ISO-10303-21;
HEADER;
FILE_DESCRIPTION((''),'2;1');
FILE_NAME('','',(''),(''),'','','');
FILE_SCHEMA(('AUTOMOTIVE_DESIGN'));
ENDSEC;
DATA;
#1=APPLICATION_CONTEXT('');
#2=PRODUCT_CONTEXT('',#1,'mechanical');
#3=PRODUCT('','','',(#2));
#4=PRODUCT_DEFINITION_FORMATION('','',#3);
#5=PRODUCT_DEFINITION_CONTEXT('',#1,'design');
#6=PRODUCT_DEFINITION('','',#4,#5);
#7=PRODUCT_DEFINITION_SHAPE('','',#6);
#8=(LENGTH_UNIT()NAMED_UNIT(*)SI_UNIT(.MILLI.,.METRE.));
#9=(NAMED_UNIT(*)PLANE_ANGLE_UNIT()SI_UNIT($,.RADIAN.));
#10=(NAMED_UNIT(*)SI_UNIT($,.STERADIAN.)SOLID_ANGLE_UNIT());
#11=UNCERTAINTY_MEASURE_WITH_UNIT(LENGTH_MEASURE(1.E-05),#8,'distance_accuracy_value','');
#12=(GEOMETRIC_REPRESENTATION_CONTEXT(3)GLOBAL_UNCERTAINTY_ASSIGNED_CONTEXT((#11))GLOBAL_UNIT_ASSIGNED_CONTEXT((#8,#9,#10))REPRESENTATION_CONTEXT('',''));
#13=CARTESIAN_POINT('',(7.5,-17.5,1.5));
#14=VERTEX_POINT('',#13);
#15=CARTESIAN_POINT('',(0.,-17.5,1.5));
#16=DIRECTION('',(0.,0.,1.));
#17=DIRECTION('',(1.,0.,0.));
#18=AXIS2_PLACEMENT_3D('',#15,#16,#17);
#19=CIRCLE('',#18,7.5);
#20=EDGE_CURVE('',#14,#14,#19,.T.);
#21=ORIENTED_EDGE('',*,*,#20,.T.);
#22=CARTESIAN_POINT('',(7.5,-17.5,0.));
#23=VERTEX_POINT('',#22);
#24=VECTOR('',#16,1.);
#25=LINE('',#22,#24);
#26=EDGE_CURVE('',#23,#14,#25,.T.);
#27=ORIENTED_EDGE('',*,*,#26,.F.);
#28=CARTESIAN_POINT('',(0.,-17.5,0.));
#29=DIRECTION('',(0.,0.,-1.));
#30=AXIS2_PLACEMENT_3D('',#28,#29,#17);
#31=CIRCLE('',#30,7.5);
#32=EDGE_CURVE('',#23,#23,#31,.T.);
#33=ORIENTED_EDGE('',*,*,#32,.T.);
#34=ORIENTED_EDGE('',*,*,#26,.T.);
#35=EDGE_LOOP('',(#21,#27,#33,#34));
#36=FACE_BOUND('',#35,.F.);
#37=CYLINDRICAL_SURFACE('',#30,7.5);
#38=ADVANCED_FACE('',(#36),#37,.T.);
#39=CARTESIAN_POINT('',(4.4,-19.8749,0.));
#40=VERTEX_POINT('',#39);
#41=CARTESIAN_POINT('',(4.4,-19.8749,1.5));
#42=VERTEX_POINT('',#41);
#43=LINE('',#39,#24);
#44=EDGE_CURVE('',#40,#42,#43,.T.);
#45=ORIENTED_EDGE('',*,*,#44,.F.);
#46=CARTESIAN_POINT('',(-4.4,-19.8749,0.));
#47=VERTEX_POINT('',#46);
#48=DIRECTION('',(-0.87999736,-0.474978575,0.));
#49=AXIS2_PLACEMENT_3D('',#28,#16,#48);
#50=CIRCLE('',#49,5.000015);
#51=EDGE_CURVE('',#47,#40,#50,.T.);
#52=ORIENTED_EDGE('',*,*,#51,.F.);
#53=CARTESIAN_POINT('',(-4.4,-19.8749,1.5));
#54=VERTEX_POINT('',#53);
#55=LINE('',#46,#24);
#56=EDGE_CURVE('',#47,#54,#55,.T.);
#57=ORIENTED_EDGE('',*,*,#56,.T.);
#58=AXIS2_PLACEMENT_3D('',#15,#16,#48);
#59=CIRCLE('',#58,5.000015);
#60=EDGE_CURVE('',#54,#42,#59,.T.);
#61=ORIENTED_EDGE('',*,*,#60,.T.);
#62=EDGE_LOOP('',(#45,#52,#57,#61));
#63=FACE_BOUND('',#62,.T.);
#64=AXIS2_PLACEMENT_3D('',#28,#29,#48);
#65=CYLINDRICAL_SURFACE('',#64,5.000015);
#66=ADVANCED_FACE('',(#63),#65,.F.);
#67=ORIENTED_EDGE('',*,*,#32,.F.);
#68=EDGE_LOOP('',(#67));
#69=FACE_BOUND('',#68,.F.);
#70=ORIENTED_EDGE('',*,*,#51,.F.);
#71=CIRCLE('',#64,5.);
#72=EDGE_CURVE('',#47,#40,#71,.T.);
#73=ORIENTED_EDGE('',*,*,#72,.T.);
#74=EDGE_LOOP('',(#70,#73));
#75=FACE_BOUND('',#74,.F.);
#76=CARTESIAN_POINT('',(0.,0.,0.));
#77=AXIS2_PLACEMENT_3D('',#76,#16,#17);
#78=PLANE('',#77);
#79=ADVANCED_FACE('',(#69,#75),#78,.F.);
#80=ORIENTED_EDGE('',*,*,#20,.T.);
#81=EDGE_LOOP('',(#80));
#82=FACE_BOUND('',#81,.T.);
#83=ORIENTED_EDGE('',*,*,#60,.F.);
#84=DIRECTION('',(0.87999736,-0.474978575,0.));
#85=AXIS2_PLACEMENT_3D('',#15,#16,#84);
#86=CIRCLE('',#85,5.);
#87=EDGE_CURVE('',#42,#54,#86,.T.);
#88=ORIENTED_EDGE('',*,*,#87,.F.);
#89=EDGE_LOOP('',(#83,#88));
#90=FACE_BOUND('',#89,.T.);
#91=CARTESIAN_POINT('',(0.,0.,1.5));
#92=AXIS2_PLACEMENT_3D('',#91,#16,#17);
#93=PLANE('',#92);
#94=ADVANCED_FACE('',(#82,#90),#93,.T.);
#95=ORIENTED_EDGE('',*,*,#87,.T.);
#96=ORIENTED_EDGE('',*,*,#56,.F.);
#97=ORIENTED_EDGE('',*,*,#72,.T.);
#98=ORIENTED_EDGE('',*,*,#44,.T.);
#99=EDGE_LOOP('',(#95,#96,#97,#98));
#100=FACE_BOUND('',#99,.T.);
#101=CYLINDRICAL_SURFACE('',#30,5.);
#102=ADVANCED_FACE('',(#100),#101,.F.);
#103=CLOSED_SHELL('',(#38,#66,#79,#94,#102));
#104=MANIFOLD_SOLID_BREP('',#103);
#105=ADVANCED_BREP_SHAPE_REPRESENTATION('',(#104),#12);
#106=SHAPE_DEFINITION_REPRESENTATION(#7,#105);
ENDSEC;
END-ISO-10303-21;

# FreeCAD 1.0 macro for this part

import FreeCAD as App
import Part
import Sketcher
Q = App.Units.Quantity

doc = App.newDocument("Part")
params = doc.addObject("Spreadsheet::Sheet", "Params")
for row, (alias, value) in enumerate([
    ("sketch1_diameter", "15 mm"),
    ("sketch1_diameter2", "10 mm"),
    ("pad1_length", "1.5 mm"),
], start=1):
    params.set(f"A{row}", alias)
    params.set(f"B{row}", "=" + value)
    params.setAlias(f"B{row}", alias)

body = doc.addObject("PartDesign::Body", "Body")

# Sketch on XY plane
sketch1 = body.newObject("Sketcher::SketchObject", "Sketch")
sketch1.AttachmentSupport = (doc.getObject("XY_Plane"), [""])
sketch1.MapMode = "FlatFace"
sketch1.addGeometry([
    Part.Circle(App.Vector(0, -18, 0), App.Vector(0, 0, 1), 8),
    Part.Circle(App.Vector(0, -18, 0), App.Vector(0, 0, 1), 5),
], False)
sketch1.addConstraint([
    Sketcher.Constraint("Coincident", 1, 3, 0, 3),
    Sketcher.Constraint("PointOnObject", 0, 3, -2),
    Sketcher.Constraint("Diameter", 0, Q("15 mm")),
    Sketcher.Constraint("Diameter", 1, Q("10 mm")),
    Sketcher.Constraint("DistanceY", 0, 3, -1, 1, Q("17.5 mm")),
])
sketch1.setExpression("Constraints[2]", "Params.sketch1_diameter")
sketch1.setExpression("Constraints[3]", "Params.sketch1_diameter2")
pad1 = body.newObject("PartDesign::Pad", "Pad")
pad1.Profile = sketch1
pad1.setExpression("Length", "Params.pad1_length")

doc.recompute()
